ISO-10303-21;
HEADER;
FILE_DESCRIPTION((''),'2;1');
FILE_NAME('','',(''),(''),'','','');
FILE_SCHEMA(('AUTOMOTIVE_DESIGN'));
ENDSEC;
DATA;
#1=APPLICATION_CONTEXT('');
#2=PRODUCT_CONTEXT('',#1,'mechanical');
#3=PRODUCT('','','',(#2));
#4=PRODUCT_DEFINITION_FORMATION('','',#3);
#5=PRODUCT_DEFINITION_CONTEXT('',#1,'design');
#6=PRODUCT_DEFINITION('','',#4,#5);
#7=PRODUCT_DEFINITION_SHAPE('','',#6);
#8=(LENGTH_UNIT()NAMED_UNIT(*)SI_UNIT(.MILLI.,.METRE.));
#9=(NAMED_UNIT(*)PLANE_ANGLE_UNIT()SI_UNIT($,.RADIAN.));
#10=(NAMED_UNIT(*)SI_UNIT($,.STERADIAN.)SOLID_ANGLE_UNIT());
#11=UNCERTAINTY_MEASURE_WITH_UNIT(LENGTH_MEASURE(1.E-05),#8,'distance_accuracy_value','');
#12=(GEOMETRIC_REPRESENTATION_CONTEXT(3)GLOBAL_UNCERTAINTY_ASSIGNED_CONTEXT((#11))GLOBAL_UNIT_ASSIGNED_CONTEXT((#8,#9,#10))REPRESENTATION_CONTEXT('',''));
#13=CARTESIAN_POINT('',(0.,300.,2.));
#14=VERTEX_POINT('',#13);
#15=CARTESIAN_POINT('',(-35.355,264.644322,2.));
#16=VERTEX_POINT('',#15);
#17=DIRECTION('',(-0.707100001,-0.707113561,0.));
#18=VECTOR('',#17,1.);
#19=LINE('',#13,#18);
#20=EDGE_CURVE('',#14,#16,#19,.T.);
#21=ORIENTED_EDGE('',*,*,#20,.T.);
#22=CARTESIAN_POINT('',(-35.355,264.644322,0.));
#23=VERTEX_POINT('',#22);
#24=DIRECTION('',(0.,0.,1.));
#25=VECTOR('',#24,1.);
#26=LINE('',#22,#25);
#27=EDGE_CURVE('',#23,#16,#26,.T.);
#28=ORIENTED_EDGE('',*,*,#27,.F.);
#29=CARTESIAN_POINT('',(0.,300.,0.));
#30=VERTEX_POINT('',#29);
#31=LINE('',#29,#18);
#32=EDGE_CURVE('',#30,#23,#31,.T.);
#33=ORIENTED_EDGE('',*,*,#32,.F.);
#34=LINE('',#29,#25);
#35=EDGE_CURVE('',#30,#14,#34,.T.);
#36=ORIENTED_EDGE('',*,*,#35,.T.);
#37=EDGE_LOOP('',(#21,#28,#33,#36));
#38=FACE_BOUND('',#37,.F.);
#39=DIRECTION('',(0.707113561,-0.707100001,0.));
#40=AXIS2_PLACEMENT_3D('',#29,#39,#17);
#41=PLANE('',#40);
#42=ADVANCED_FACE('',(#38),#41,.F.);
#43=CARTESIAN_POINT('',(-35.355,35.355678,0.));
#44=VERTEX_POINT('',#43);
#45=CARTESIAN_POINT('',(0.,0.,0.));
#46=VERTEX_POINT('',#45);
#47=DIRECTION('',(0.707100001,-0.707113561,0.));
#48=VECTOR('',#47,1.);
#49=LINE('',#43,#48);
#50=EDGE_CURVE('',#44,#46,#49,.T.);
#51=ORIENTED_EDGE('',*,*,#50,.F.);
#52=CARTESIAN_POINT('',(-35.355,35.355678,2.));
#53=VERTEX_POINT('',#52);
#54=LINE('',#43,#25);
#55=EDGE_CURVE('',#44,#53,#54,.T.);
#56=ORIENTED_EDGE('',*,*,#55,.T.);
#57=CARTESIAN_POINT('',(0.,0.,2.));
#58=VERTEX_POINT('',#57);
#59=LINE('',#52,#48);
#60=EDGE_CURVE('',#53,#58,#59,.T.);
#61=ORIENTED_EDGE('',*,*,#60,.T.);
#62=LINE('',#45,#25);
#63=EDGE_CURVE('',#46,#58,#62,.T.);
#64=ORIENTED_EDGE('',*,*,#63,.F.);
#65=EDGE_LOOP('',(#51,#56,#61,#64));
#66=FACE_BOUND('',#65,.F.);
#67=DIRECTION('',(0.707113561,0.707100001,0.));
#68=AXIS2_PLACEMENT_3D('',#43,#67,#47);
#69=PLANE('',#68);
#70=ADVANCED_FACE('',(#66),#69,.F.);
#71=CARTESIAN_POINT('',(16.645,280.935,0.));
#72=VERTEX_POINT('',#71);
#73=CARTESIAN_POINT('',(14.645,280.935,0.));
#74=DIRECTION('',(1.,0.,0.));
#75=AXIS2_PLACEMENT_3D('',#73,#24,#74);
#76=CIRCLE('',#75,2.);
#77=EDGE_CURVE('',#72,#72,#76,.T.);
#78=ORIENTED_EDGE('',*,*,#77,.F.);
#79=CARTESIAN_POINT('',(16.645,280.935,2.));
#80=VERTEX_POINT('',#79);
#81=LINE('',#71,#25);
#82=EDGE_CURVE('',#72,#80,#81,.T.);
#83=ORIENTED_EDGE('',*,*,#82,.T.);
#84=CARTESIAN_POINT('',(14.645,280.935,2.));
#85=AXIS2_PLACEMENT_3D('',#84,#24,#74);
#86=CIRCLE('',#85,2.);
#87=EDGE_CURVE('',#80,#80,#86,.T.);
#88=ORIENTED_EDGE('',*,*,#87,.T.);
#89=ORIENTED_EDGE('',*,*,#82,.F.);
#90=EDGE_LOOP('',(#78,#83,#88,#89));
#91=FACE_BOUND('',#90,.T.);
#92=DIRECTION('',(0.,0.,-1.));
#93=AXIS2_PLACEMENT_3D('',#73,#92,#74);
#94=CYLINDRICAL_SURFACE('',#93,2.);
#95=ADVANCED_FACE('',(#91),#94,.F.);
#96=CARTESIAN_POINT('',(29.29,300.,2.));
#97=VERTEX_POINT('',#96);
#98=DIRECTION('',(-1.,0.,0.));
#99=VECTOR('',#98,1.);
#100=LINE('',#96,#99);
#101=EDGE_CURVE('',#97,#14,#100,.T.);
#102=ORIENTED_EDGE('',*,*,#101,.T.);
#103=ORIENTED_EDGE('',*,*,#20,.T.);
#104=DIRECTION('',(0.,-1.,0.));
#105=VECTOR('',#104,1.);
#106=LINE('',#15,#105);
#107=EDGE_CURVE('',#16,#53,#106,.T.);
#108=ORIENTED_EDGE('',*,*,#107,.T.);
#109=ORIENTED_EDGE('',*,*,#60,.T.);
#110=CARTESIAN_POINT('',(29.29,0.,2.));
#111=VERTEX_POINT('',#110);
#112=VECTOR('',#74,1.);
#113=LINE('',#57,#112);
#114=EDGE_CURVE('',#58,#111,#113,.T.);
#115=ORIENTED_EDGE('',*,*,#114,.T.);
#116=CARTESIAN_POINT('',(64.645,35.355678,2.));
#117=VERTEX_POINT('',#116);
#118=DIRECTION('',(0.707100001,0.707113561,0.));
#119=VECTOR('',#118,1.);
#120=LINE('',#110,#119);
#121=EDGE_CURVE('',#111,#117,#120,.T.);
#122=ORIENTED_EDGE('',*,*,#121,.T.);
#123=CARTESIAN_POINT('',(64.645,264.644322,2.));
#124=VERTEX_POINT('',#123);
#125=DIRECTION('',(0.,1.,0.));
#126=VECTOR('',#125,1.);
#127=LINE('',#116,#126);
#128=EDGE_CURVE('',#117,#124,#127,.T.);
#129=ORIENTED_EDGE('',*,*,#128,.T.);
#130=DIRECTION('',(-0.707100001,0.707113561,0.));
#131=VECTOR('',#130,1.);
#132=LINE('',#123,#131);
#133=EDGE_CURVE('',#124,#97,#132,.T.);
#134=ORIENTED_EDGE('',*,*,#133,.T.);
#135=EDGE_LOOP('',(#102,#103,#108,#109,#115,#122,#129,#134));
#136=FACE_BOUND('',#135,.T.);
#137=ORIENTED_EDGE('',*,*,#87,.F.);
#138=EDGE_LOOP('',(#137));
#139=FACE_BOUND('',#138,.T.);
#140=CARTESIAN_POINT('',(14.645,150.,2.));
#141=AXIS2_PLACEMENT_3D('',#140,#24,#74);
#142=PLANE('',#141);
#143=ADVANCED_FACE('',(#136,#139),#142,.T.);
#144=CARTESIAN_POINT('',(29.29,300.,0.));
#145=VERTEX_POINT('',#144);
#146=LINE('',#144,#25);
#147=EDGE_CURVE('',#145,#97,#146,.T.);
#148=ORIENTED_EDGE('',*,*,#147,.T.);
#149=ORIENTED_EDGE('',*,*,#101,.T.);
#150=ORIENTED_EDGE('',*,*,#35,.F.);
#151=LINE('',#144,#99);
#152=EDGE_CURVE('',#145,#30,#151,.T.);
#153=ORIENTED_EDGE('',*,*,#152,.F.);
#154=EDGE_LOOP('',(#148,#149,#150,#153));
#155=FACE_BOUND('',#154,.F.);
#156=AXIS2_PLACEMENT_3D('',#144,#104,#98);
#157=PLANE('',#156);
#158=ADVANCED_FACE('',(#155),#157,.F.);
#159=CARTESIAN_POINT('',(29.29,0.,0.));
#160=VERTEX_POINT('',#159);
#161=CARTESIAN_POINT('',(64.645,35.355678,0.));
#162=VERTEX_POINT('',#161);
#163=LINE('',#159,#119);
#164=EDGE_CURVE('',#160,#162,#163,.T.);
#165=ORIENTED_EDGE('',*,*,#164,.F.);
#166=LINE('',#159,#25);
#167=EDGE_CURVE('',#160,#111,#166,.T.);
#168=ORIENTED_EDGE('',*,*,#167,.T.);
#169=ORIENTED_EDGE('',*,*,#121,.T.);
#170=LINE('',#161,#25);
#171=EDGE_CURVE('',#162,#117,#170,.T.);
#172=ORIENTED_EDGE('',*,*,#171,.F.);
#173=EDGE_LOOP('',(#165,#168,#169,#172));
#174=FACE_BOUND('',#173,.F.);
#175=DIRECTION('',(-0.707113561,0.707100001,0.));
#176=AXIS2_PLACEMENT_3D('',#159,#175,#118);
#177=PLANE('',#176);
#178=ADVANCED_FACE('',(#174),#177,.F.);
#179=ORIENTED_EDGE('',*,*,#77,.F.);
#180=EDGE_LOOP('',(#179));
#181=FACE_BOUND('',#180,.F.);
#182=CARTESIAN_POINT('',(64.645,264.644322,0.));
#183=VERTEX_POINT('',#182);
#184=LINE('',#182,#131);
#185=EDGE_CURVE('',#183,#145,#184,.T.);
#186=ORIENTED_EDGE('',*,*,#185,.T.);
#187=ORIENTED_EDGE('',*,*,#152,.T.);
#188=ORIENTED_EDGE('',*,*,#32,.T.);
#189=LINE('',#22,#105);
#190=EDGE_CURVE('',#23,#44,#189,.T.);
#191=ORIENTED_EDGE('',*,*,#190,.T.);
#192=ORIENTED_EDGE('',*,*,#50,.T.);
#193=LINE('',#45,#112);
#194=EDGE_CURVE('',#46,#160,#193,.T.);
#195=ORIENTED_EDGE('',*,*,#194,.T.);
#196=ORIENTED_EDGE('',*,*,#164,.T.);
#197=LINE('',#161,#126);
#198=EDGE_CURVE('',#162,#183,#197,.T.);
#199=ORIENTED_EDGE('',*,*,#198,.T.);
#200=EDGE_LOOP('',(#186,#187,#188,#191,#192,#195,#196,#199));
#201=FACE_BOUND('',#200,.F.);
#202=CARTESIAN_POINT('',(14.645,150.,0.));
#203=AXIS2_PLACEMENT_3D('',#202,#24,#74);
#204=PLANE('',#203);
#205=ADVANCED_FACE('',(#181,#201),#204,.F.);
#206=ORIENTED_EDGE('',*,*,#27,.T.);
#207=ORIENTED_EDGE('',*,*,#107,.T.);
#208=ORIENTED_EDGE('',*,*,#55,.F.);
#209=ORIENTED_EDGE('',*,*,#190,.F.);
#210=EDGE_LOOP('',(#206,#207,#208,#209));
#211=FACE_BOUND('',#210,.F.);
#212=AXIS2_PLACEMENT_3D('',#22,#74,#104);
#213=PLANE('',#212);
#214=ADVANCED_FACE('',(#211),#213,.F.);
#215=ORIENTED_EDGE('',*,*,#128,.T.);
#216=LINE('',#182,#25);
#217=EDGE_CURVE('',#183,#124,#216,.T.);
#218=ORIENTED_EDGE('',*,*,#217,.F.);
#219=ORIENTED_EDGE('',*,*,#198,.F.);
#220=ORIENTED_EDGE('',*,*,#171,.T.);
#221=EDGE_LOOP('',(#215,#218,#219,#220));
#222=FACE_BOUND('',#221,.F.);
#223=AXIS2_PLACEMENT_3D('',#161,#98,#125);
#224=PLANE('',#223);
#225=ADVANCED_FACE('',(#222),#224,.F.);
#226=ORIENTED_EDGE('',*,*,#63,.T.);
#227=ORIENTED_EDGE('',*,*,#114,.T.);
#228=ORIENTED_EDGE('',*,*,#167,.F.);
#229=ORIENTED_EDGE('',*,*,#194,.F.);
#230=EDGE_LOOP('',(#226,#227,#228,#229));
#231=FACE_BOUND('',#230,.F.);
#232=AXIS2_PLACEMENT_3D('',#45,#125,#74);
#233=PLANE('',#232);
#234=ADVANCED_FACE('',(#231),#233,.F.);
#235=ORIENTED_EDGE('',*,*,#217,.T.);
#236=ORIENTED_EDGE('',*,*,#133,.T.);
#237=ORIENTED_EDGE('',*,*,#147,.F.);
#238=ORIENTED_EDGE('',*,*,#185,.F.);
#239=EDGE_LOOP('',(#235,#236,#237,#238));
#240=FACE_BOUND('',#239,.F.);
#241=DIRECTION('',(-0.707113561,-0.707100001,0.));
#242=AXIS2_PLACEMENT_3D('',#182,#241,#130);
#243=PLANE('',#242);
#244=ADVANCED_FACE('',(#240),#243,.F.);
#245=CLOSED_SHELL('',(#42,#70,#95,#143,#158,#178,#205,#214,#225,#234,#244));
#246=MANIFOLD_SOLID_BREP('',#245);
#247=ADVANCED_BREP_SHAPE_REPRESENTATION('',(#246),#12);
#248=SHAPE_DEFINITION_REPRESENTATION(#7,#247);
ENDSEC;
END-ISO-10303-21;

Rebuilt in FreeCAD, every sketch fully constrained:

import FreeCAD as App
import Part
import Sketcher

V = App.Vector

doc = App.newDocument("Part")
body = doc.addObject("PartDesign::Body", "Body")

# Sketch on XY plane
sketch1 = body.newObject("Sketcher::SketchObject", "Sketch")
sketch1.AttachmentSupport = (doc.getObject("XY_Plane"), [""])
sketch1.MapMode = "FlatFace"
sketch1.addGeometry(Part.LineSegment(V(-35.4, 35.4, 0), V(0, 0, 0)), False)
sketch1.addGeometry(Part.LineSegment(V(0, 0, 0), V(29.3, 0, 0)), False)
sketch1.addGeometry(Part.LineSegment(V(29.3, 0, 0), V(64.6, 35.4, 0)), False)
sketch1.addGeometry(Part.LineSegment(V(64.6, 35.4, 0), V(64.6, 264.6, 0)), False)
sketch1.addGeometry(Part.LineSegment(V(64.6, 264.6, 0), V(29.3, 300, 0)), False)
sketch1.addGeometry(Part.LineSegment(V(29.3, 300, 0), V(0, 300, 0)), False)
sketch1.addGeometry(Part.LineSegment(V(0, 300, 0), V(-35.4, 264.6, 0)), False)
sketch1.addGeometry(Part.LineSegment(V(-35.4, 264.6, 0), V(-35.4, 35.4, 0)), False)
sketch1.addGeometry(Part.Circle(V(14.6, 280.9, 0), V(0, 0, 1), 2), False)
sketch1.addConstraint(Sketcher.Constraint("Coincident", 0, 2, 1, 1))
sketch1.addConstraint(Sketcher.Constraint("Coincident", 1, 2, 2, 1))
sketch1.addConstraint(Sketcher.Constraint("Coincident", 2, 2, 3, 1))
sketch1.addConstraint(Sketcher.Constraint("Coincident", 3, 2, 4, 1))
sketch1.addConstraint(Sketcher.Constraint("Coincident", 4, 2, 5, 1))
sketch1.addConstraint(Sketcher.Constraint("Coincident", 5, 2, 6, 1))
sketch1.addConstraint(Sketcher.Constraint("Coincident", 6, 2, 7, 1))
sketch1.addConstraint(Sketcher.Constraint("Coincident", 7, 2, 0, 1))
sketch1.addConstraint(Sketcher.Constraint("Horizontal", 1))
sketch1.addConstraint(Sketcher.Constraint("Vertical", 3))
sketch1.addConstraint(Sketcher.Constraint("Horizontal", 5))
sketch1.addConstraint(Sketcher.Constraint("Vertical", 7))
sketch1.addConstraint(Sketcher.Constraint("Coincident", 0, 2, -1, 1))
sketch1.addConstraint(Sketcher.Constraint("PointOnObject", 5, 2, -2))
sketch1.addConstraint(Sketcher.Constraint("Parallel", 0, 4))
sketch1.addConstraint(Sketcher.Constraint("Parallel", 2, 6))
sketch1.addConstraint(Sketcher.Constraint("Horizontal", 3, 2, 6, 2))
sketch1.addConstraint(Sketcher.Constraint("Horizontal", 2, 2, 7, 2))
sketch1.addConstraint(Sketcher.Constraint("Vertical", 1, 2, 4, 2))
sketch1.addConstraint(Sketcher.Constraint("Diameter", 8, 4.0))
sketch1.addConstraint(Sketcher.Constraint("Distance", 0, 50.0))
sketch1.addConstraint(Sketcher.Constraint("DistanceY", -1, 1, 4, 2, 300.0))
sketch1.addConstraint(Sketcher.Constraint("DistanceX", 8, 3, 2, 2, 50.0))
sketch1.addConstraint(Sketcher.Constraint("DistanceX", 6, 2, 8, 3, 50.0))
sketch1.addConstraint(Sketcher.Constraint("DistanceX", 1, 1, 1, 2, 29.29))
sketch1.addConstraint(Sketcher.Constraint("DistanceY", -1, 1, 8, 3, 280.935))
pad1 = body.newObject("PartDesign::Pad", "Pad")
pad1.Profile = sketch1
pad1.Length = 2

doc.recompute()
